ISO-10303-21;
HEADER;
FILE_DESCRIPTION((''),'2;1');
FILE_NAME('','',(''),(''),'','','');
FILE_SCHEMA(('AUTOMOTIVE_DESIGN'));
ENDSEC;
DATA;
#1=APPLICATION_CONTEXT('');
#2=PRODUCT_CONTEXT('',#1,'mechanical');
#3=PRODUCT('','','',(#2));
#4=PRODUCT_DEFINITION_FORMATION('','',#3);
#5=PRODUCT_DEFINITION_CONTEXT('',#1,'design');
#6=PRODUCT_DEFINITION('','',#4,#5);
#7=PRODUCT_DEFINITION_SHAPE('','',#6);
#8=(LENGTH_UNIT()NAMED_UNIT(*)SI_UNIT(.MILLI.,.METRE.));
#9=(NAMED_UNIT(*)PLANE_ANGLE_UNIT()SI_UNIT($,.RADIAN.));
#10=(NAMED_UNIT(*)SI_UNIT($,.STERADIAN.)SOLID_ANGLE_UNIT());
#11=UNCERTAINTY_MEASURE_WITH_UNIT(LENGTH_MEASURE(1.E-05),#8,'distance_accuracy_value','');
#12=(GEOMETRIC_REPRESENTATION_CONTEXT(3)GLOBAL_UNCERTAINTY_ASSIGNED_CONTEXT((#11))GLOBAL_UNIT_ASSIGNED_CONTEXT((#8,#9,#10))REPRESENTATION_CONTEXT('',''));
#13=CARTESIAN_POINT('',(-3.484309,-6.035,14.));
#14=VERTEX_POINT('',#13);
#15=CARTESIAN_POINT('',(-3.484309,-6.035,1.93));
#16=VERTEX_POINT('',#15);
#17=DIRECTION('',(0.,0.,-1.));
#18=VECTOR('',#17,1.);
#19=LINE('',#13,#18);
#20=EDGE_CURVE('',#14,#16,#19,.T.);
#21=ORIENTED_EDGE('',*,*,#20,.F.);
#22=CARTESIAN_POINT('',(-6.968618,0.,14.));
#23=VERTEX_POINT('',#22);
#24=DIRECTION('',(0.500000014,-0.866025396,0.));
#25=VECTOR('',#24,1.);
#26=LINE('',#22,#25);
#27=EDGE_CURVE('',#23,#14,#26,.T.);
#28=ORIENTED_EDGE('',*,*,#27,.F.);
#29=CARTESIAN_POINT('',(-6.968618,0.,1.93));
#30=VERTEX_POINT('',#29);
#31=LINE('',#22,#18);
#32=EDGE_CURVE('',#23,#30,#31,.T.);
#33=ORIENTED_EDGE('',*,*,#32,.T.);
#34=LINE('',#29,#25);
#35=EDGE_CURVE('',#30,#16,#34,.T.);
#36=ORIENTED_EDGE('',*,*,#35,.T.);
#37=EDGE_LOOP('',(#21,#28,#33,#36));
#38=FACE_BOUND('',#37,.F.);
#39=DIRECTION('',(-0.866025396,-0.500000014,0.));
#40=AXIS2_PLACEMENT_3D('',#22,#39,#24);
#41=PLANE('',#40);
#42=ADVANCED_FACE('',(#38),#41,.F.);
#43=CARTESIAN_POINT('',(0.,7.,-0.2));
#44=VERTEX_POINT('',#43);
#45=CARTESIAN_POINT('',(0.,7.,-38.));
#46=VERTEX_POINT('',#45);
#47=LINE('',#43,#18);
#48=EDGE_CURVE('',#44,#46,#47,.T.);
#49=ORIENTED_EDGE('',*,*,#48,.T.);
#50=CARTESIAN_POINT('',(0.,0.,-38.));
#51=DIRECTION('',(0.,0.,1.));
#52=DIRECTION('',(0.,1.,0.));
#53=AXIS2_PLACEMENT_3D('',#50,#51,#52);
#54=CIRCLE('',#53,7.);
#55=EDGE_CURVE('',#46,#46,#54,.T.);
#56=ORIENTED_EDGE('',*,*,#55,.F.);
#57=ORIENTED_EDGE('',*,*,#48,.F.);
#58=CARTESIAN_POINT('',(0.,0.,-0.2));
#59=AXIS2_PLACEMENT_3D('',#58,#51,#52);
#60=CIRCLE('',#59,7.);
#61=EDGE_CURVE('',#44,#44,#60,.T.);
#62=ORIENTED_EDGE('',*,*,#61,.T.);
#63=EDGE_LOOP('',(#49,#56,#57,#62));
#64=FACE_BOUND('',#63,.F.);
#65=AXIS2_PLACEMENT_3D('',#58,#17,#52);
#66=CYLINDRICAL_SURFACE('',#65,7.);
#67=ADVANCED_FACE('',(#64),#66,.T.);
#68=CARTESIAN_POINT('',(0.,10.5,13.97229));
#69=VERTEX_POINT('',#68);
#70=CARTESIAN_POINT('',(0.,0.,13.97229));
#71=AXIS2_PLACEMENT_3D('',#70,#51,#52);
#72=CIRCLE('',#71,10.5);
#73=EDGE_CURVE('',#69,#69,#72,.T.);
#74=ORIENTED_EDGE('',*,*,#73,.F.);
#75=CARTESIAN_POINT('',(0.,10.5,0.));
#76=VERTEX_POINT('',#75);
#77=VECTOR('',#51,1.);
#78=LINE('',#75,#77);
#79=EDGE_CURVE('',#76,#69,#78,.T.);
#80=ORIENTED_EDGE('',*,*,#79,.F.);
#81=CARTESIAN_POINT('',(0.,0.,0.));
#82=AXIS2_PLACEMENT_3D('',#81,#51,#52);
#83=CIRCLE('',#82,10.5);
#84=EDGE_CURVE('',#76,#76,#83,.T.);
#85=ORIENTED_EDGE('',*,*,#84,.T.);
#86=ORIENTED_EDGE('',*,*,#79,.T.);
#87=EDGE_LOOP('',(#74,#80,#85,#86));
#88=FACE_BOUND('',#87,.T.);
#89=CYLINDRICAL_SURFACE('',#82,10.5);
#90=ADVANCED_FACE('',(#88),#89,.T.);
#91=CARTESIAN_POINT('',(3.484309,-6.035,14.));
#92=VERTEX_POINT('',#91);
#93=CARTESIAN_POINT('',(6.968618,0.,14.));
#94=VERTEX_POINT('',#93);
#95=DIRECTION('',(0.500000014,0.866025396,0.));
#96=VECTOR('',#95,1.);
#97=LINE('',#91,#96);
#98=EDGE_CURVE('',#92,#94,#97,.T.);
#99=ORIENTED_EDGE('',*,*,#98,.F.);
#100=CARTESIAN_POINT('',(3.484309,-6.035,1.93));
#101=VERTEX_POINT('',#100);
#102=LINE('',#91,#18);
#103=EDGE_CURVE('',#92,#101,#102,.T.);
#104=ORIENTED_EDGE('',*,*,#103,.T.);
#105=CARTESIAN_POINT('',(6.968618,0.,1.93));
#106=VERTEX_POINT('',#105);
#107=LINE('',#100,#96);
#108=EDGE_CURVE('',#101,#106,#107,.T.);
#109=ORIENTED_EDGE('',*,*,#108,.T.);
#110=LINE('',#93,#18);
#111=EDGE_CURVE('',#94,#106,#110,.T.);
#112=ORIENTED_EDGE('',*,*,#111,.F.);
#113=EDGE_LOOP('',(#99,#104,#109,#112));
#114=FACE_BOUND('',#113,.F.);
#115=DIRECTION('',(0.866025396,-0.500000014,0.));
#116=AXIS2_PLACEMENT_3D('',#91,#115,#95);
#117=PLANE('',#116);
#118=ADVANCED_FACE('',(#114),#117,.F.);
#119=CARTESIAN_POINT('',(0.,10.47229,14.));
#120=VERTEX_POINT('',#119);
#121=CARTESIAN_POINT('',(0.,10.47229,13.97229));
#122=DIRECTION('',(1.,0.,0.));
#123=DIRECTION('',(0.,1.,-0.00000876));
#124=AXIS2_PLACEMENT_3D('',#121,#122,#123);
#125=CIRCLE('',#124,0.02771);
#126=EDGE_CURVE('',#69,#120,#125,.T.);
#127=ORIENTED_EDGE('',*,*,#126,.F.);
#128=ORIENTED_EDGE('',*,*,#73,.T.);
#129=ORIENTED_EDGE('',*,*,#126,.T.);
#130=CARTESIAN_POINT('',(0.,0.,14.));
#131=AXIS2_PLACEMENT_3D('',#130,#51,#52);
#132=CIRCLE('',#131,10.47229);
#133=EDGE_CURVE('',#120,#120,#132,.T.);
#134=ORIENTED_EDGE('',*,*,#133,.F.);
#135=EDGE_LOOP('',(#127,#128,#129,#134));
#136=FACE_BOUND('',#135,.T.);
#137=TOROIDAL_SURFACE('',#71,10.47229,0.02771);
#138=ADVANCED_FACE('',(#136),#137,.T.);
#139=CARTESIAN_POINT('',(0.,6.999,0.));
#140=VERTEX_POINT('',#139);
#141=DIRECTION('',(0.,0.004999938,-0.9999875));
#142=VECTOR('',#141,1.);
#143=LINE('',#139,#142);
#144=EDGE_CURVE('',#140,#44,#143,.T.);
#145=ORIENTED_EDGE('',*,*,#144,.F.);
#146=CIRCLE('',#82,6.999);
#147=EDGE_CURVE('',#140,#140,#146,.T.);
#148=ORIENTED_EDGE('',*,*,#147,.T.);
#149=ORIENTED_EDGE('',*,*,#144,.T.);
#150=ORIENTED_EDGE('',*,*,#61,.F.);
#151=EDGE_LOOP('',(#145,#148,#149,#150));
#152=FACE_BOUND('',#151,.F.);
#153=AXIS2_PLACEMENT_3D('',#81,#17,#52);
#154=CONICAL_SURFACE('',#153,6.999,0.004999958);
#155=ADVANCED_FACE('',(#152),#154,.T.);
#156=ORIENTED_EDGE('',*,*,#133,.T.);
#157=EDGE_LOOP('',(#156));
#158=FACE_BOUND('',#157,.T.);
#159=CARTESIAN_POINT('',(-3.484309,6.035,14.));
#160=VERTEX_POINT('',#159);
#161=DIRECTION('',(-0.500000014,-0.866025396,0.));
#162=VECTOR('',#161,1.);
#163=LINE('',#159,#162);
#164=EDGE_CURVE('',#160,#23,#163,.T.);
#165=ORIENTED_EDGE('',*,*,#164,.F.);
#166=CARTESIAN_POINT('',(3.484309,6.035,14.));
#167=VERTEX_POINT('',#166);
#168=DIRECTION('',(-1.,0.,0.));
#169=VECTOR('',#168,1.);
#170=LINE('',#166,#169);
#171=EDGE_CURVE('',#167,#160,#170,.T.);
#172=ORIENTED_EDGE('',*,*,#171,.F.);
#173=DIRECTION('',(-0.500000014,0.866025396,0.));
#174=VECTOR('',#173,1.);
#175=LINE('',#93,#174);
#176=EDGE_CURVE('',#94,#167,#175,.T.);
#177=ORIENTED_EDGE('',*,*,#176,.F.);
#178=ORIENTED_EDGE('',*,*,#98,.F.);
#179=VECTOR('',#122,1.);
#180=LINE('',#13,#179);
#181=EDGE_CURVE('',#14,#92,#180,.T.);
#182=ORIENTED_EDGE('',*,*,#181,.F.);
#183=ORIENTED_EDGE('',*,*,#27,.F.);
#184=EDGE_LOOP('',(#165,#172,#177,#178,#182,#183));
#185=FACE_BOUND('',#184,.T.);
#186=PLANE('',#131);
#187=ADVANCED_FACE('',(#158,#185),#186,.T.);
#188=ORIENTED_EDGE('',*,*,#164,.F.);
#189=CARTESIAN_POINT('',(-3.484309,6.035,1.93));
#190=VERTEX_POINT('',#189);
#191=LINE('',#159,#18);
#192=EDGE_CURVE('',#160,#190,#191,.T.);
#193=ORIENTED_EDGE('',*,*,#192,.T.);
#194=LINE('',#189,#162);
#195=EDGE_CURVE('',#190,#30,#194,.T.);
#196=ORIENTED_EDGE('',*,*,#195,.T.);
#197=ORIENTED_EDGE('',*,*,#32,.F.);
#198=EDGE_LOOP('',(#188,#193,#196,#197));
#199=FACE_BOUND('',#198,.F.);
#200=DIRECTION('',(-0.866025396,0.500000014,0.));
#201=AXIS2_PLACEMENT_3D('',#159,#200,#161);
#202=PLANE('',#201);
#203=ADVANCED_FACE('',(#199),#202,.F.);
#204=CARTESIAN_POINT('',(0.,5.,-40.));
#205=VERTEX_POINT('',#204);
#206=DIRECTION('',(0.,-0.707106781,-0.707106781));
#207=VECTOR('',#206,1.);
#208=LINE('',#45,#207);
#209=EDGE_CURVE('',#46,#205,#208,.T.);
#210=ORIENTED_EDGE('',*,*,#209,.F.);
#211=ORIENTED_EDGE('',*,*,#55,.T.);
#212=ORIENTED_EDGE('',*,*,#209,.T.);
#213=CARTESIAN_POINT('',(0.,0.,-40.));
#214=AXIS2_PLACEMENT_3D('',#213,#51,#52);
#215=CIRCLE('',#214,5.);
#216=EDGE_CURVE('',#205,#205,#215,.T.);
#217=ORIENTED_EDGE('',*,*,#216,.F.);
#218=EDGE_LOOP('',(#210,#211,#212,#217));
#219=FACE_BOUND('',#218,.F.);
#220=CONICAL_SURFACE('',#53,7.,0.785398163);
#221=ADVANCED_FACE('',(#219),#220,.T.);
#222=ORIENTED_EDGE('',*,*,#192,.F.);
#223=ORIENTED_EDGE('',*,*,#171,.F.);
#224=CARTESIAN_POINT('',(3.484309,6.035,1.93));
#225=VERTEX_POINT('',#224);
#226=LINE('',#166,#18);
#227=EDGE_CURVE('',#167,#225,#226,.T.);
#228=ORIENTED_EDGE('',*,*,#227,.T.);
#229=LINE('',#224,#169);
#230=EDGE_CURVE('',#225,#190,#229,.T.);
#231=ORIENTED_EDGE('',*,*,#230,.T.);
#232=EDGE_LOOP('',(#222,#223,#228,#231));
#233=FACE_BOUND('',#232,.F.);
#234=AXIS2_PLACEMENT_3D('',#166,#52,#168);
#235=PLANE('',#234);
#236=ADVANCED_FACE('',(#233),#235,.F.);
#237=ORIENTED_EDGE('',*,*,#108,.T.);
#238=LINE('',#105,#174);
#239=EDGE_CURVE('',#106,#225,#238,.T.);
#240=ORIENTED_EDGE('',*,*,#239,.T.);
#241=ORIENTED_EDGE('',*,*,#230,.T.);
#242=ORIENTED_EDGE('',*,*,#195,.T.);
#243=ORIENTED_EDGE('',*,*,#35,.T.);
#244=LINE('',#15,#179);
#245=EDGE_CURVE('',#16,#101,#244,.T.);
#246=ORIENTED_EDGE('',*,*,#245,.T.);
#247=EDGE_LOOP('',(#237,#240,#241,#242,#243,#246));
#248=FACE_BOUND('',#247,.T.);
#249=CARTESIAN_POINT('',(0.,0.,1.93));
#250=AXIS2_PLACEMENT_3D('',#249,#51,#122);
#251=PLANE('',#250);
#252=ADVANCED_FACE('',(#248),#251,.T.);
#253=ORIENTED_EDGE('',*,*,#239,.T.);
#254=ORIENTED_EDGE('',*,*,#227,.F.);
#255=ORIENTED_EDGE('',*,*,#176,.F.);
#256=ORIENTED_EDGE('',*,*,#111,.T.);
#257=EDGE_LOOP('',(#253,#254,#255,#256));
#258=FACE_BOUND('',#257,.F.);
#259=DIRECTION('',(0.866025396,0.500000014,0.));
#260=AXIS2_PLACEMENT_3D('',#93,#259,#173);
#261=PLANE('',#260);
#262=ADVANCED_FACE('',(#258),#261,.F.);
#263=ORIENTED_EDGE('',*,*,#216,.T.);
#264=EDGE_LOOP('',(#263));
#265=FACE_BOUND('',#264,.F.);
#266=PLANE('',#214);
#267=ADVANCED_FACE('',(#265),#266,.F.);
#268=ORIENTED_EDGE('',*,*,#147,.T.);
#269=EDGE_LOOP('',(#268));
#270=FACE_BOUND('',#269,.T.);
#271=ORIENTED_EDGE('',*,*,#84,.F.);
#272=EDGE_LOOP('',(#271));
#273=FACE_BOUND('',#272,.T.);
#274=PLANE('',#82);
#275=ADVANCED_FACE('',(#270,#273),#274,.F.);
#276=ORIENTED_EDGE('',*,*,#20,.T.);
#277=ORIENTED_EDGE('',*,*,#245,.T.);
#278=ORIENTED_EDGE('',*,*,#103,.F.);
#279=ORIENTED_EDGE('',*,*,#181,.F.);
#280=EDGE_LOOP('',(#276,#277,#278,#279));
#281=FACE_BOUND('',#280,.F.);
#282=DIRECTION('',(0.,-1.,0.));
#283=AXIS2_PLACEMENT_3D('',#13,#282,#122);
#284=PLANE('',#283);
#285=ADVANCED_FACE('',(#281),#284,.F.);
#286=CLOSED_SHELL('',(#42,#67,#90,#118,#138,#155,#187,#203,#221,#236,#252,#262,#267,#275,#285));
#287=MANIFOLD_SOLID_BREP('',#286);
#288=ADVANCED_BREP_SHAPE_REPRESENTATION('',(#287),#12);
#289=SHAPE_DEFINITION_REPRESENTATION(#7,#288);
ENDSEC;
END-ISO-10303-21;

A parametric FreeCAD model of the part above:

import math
import FreeCAD as App
import Part
import Sketcher

V = App.Vector
Q = App.Units.Quantity


def add_polygon(sketch, points):
    """Adds a closed chain of lines whose ends are joined by coincident constraints."""
    first, n = sketch.GeometryCount, len(points)
    for a, b in zip(points, points[1:] + points[:1]):
        sketch.addGeometry(Part.LineSegment(App.Vector(*a, 0), App.Vector(*b, 0)), False)
    for i in range(n):
        sketch.addConstraint(Sketcher.Constraint("Coincident", first + i, 2, first + (i + 1) % n, 1))

doc = App.newDocument("Part")
body = doc.addObject("PartDesign::Body", "Body")

# Sketch on YZ plane
sketch1 = body.newObject("Sketcher::SketchObject", "Sketch")
sketch1.AttachmentSupport = (doc.getObject("YZ_Plane"), [""])
sketch1.MapMode = "FlatFace"
sketch1.addGeometry([
    Part.LineSegment(V(6.999, 0, 0), V(10.5, 0, 0)),  # 0
    Part.LineSegment(V(10.5, 0, 0), V(10.5, 13.972, 0)),  # 1
    Part.ArcOfCircle(Part.Circle(V(10.472, 13.972, 0), V(0, 0, 1), 0.028), math.radians(0), math.radians(90)),  # 2
    Part.LineSegment(V(10.472, 14, 0), V(0, 14, 0)),  # 3
    Part.LineSegment(V(0, 14, 0), V(0, -40, 0)),  # 4
    Part.LineSegment(V(0, -40, 0), V(5, -40, 0)),  # 5
    Part.LineSegment(V(5, -40, 0), V(7, -38, 0)),  # 6
    Part.LineSegment(V(7, -38, 0), V(7, -0.2, 0)),  # 7
    Part.LineSegment(V(7, -0.2, 0), V(6.999, 0, 0)),  # 8
], False)
sketch1.addConstraint([
    Sketcher.Constraint("Coincident", 0, 2, 1, 1),
    Sketcher.Constraint("Coincident", 1, 2, 2, 1),
    Sketcher.Constraint("Coincident", 2, 2, 3, 1),
    Sketcher.Constraint("Coincident", 3, 2, 4, 1),
    Sketcher.Constraint("Coincident", 4, 2, 5, 1),
    Sketcher.Constraint("Coincident", 5, 2, 6, 1),
    Sketcher.Constraint("Coincident", 6, 2, 7, 1),
    Sketcher.Constraint("Coincident", 7, 2, 8, 1),
    Sketcher.Constraint("Coincident", 8, 2, 0, 1),
    Sketcher.Constraint("Horizontal", 0),
    Sketcher.Constraint("Vertical", 1),
    Sketcher.Constraint("Horizontal", 3),
    Sketcher.Constraint("Vertical", 4),
    Sketcher.Constraint("Horizontal", 5),
    Sketcher.Constraint("Vertical", 7),
    Sketcher.Constraint("PointOnObject", 0, 2, -1),
    Sketcher.Constraint("PointOnObject", 3, 2, -2),
    Sketcher.Constraint("Horizontal", 2, 3, 1, 2),
    Sketcher.Constraint("DistanceX", 5, 1, 5, 2, Q("5 mm")),
    Sketcher.Constraint("DistanceY", 4, 2, 4, 1, Q("54 mm")),
    Sketcher.Constraint("Angle", 6, Q("45 deg")),
    Sketcher.Constraint("DistanceY", 7, 1, 7, 2, Q("37.8 mm")),
    Sketcher.Constraint("DistanceY", -1, 1, 2, 2, Q("14 mm")),
    Sketcher.Constraint("DistanceX", -1, 1, 6, 2, Q("7 mm")),
    Sketcher.Constraint("DistanceX", -1, 1, 0, 2, Q("10.5 mm")),
    Sketcher.Constraint("DistanceX", 0, 1, 0, 2, Q("3.501 mm")),
    Sketcher.Constraint("Radius", 2, Q("0.02771 mm")),
    Sketcher.Constraint("DistanceX", 3, 2, 3, 1, Q("10.47229 mm")),
])
revolution = body.newObject("PartDesign::Revolution", "Revolution")
revolution.Profile = sketch1
revolution.ReferenceAxis = (sketch1, ["V_Axis"])
revolution.Angle = 360

# Sketch on XY plane
sketch2 = body.newObject("Sketcher::SketchObject", "Sketch001")
sketch2.AttachmentSupport = (doc.getObject("XY_Plane"), [""])
sketch2.MapMode = "FlatFace"
sketch2.AttachmentOffset = App.Placement(V(0, 0, 14), App.Rotation())
add_polygon(sketch2, [(7, 0), (3, 6), (-3, 6), (-7, 0), (-3, -6), (3, -6)])  # lines 0-5
sketch2.addConstraint([
    Sketcher.Constraint("Horizontal", 1),
    Sketcher.Constraint("Horizontal", 4),
    Sketcher.Constraint("Symmetric", 0, 2, 3, 2, -1, 1),
    Sketcher.Constraint("Symmetric", 2, 2, 5, 2, -1, 1),
    Sketcher.Constraint("PointOnObject", 2, 2, -1),
    Sketcher.Constraint("Parallel", 2, 5),
    Sketcher.Constraint("Vertical", 1, 2, 3, 2),
    Sketcher.Constraint("Angle", 0, Q("120.000001 deg")),
    Sketcher.Constraint("DistanceY", 3, 2, 1, 2, Q("12.07 mm")),
    Sketcher.Constraint("DistanceX", 1, 2, 1, 1, Q("6.968618 mm")),
])
pocket1 = body.newObject("PartDesign::Pocket", "Pocket")
pocket1.Profile = sketch2
pocket1.Length = 12.07

doc.recompute()
